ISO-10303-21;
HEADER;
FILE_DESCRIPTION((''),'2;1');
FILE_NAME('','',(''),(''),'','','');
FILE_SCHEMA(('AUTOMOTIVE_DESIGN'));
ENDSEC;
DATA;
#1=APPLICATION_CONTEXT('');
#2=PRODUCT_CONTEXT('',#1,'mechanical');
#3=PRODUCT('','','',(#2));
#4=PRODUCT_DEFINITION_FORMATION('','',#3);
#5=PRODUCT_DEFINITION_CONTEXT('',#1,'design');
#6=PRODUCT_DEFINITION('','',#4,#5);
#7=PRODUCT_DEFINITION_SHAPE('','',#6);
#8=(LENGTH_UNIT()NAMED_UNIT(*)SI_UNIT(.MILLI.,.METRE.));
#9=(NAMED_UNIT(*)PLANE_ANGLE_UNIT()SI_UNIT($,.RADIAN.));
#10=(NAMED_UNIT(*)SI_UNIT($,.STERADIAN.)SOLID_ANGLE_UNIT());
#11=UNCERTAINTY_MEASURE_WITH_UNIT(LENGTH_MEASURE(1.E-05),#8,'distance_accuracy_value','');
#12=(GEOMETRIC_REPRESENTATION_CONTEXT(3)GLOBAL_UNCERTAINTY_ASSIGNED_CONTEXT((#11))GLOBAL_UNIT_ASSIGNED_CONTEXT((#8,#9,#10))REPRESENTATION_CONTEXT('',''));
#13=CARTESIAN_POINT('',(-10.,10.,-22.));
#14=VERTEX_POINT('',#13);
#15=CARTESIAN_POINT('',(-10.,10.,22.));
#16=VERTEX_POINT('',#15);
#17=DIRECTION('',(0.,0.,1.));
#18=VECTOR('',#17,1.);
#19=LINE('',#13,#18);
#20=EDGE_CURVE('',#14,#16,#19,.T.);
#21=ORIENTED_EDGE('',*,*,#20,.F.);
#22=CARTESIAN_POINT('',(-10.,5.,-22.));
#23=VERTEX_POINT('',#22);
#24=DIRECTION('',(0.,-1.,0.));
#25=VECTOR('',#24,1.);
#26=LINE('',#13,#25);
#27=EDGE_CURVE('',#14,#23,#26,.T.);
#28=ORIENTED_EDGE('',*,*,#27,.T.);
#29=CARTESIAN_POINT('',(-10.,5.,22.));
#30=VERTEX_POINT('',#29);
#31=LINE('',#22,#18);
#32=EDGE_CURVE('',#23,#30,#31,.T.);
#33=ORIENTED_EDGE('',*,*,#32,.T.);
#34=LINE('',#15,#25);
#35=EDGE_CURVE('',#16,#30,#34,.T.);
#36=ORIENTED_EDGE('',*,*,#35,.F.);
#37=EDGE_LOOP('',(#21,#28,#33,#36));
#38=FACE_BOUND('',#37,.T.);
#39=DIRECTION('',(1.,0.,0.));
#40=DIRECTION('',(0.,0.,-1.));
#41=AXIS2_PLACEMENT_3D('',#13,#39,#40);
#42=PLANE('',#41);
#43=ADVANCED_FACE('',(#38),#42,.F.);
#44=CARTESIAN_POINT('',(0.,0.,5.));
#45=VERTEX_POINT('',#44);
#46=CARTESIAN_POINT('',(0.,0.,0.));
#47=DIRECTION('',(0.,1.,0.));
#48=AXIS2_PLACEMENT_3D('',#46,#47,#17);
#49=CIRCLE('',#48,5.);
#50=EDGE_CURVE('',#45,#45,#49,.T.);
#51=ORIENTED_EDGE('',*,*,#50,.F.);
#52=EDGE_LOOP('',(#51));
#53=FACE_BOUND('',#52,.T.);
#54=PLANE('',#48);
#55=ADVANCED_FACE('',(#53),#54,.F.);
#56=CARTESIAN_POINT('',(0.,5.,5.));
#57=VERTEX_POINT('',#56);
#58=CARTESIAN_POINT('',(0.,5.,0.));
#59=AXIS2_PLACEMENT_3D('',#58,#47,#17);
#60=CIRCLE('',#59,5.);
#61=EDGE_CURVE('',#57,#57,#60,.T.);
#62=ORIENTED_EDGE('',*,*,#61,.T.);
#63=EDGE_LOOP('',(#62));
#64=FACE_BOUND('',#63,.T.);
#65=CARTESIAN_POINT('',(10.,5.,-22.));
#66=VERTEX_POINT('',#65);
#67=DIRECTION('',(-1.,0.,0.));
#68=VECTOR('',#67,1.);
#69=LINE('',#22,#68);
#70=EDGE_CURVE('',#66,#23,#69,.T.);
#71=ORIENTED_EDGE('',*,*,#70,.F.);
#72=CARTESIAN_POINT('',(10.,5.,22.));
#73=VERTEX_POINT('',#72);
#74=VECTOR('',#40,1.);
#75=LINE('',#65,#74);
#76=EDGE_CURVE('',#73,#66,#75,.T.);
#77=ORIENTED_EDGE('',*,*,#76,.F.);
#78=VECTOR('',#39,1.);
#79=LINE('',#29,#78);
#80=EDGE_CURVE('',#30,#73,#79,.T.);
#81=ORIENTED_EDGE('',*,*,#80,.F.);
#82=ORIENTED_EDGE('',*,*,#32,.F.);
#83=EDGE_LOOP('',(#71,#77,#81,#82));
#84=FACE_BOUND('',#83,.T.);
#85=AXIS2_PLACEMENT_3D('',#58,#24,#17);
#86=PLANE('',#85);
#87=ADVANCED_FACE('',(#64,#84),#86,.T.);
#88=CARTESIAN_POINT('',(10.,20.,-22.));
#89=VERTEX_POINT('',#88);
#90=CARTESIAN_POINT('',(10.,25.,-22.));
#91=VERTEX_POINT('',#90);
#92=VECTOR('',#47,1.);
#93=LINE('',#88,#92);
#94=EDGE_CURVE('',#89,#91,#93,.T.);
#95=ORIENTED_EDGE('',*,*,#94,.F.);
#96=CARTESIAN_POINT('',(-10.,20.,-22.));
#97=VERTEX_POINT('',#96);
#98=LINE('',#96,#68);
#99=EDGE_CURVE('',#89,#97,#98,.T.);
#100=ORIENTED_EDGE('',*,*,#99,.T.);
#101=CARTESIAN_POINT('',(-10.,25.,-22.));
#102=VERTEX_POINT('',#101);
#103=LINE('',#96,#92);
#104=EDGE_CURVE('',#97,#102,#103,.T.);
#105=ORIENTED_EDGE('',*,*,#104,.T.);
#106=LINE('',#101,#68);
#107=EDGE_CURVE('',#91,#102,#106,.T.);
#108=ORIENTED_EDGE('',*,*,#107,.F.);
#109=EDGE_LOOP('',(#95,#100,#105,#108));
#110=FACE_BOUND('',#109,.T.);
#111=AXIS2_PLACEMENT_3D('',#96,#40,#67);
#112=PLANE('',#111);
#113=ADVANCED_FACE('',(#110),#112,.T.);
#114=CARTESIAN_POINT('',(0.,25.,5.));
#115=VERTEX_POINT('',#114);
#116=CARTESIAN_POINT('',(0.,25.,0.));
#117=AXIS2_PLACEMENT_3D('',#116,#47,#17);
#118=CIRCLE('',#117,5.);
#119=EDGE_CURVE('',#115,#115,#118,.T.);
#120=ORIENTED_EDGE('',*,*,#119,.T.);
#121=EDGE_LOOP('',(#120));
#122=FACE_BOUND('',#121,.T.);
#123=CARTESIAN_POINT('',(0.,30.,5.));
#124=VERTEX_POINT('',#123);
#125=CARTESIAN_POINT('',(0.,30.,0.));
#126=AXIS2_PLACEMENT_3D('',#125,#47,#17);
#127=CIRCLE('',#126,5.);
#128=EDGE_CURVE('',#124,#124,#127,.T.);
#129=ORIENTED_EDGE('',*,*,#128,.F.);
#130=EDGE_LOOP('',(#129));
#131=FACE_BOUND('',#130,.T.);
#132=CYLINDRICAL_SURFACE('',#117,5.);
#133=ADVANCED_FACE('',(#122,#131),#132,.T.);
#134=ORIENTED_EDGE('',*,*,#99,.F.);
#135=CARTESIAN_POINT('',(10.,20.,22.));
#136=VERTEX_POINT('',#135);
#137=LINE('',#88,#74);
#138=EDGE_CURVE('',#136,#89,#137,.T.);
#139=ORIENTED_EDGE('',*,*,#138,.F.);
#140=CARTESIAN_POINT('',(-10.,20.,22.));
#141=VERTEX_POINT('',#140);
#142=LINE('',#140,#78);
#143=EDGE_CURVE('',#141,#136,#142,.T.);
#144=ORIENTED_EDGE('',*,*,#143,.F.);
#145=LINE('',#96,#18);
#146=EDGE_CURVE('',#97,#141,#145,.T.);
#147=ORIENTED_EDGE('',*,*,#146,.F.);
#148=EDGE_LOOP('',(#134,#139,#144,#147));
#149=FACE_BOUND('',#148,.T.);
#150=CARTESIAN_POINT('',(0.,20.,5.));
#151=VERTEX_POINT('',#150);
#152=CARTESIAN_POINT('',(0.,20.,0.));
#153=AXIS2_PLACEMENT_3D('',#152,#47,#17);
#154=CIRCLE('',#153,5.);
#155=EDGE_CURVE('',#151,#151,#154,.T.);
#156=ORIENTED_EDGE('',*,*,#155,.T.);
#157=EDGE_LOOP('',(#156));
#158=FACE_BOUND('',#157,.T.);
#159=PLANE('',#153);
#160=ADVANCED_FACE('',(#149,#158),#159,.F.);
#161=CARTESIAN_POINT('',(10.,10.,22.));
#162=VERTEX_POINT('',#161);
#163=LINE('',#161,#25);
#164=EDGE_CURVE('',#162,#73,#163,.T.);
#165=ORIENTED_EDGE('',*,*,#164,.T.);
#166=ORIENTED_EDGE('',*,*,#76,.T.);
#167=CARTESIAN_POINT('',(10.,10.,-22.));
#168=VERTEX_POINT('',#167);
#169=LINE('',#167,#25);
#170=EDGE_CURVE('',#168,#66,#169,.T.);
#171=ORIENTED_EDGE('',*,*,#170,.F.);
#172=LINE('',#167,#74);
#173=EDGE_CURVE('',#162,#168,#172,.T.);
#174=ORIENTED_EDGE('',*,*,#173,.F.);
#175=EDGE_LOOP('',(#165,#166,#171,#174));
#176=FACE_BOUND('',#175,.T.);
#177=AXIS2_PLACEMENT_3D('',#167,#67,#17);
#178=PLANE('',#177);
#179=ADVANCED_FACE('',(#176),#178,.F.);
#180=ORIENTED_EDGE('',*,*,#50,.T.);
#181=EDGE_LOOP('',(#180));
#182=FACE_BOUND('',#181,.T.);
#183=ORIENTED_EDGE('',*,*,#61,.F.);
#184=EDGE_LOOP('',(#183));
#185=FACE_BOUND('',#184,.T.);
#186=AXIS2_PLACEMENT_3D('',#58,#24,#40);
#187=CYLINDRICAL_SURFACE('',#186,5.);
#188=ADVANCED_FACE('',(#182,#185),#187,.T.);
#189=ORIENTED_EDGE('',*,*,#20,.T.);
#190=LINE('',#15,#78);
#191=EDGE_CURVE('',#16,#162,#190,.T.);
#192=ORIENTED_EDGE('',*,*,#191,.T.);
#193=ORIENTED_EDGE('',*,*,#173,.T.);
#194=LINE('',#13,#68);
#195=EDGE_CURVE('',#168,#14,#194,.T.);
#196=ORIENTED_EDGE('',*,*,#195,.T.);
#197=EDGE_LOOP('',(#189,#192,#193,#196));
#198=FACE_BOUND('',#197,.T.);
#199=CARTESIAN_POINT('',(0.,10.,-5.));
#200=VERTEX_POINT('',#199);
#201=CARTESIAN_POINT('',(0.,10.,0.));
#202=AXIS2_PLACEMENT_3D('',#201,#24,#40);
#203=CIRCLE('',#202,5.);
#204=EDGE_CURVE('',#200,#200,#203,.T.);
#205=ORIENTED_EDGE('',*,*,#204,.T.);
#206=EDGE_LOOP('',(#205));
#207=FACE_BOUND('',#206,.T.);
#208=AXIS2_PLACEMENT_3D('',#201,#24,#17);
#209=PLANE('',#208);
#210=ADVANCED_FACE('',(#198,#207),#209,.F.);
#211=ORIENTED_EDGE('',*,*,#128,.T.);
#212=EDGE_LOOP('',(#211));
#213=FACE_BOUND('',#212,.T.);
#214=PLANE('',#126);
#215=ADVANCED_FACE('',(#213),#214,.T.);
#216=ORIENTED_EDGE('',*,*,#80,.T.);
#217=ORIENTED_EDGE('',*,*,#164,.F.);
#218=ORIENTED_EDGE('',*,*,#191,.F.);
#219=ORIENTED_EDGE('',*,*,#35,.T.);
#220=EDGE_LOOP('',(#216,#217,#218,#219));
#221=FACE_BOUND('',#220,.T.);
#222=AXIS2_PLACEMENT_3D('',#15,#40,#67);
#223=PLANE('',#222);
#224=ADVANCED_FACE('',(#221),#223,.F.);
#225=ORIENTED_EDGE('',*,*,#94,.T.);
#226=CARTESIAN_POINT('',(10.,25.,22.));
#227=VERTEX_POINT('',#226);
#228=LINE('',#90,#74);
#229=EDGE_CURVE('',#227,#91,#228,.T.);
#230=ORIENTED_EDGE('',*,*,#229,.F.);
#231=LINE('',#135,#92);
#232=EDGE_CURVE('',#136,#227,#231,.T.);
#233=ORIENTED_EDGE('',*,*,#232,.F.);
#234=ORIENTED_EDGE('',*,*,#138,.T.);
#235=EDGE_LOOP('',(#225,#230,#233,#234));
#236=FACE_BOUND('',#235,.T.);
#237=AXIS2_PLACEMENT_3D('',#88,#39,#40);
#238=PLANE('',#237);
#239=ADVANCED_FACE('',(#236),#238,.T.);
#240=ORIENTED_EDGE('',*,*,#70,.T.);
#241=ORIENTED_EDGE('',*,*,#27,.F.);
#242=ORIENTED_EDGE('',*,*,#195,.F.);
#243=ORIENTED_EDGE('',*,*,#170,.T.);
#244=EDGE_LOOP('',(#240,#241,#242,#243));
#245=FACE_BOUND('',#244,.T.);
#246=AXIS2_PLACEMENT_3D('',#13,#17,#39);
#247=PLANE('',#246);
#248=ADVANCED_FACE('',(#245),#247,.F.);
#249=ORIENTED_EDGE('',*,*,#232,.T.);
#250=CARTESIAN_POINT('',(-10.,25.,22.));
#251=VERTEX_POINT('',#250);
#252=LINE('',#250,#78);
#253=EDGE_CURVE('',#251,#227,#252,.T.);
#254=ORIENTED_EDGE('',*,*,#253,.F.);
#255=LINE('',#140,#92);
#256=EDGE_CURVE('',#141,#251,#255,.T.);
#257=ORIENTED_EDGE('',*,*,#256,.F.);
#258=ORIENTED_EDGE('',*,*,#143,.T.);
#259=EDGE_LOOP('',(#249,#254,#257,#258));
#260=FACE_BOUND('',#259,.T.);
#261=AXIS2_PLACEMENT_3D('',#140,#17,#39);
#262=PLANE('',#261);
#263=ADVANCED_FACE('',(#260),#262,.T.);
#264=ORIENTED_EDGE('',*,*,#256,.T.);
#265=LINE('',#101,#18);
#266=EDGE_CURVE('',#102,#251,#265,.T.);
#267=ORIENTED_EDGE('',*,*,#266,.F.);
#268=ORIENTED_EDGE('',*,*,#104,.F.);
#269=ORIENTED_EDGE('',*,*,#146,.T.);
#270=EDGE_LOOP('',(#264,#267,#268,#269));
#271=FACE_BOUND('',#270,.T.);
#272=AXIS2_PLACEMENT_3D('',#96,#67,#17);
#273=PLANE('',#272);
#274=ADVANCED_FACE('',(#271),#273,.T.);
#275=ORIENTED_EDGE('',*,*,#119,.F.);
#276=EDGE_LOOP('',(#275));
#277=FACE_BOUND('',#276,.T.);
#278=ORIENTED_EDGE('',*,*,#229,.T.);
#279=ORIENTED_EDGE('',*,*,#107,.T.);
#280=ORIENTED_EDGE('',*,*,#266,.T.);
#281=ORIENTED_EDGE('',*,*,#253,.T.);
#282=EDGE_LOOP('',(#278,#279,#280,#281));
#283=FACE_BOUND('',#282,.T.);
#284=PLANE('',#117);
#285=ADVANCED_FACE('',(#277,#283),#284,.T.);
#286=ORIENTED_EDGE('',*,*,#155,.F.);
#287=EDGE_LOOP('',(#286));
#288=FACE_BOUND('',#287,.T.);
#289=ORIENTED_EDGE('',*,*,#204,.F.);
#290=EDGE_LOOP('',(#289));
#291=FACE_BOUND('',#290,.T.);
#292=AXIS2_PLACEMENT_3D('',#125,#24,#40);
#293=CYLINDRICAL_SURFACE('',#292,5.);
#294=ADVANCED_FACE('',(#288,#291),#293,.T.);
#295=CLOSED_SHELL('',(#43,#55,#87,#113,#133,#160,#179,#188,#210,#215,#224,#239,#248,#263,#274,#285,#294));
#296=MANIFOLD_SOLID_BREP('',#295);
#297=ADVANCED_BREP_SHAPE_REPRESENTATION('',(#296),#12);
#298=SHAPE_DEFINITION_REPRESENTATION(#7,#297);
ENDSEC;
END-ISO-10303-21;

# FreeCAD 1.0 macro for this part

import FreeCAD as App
import Part
import Sketcher

V = App.Vector

doc = App.newDocument("Part")
body = doc.addObject("PartDesign::Body", "Body")

# Sketch on XZ plane
sketch1 = doc.addObject("Sketcher::SketchObject", "Sketch")
body.addObject(sketch1)
sketch1.AttachmentSupport = (doc.XZ_Plane, [""])
sketch1.MapMode = "FlatFace"
sketch1.addGeometry(Part.Circle(V(0, 0, 0), V(0, 0, 1), 5), False)
sketch1.addConstraint([
    Sketcher.Constraint("Coincident", 0, 3, -1, 1),
    Sketcher.Constraint("Diameter", 0, 10.0),
])
pad1 = doc.addObject("PartDesign::Pad", "Pad")
body.addObject(pad1)
pad1.Profile = sketch1
pad1.Length = 30
pad1.Reversed = True

# Sketch on XZ plane
sketch2 = doc.addObject("Sketcher::SketchObject", "Sketch001")
body.addObject(sketch2)
sketch2.AttachmentSupport = (doc.XZ_Plane, [""])
sketch2.MapMode = "FlatFace"
sketch2.AttachmentOffset = App.Placement(V(0, 0, -30), App.Rotation())
sketch2.addGeometry([
    Part.LineSegment(V(-10, -22, 0), V(-10, 22, 0)),
    Part.LineSegment(V(-10, 22, 0), V(10, 22, 0)),
    Part.LineSegment(V(10, 22, 0), V(10, -22, 0)),
    Part.LineSegment(V(10, -22, 0), V(-10, -22, 0)),
], False)
sketch2.addConstraint([
    Sketcher.Constraint("Coincident", 0, 2, 1, 1),
    Sketcher.Constraint("Coincident", 1, 2, 2, 1),
    Sketcher.Constraint("Coincident", 2, 2, 3, 1),
    Sketcher.Constraint("Coincident", 3, 2, 0, 1),
    Sketcher.Constraint("Vertical", 0),
    Sketcher.Constraint("Horizontal", 1),
    Sketcher.Constraint("Vertical", 2),
    Sketcher.Constraint("Horizontal", 3),
    Sketcher.Constraint("Symmetric", 0, 2, 2, 2, -1, 1),
    Sketcher.Constraint("DistanceX", 1, 1, 1, 2, 20.0),
    Sketcher.Constraint("DistanceY", 0, 1, 0, 2, 44.0),
])
pad2 = doc.addObject("PartDesign::Pad", "Pad001")
body.addObject(pad2)
pad2.Profile = sketch2
pad2.Length = 10

# Sketch on XZ plane
sketch3 = doc.addObject("Sketcher::SketchObject", "Sketch002")
body.addObject(sketch3)
sketch3.AttachmentSupport = (doc.XZ_Plane, [""])
sketch3.MapMode = "FlatFace"
sketch3.AttachmentOffset = App.Placement(V(0, 0, -25), App.Rotation())
sketch3.addGeometry([
    Part.LineSegment(V(-10, -22, 0), V(-10, 22, 0)),  # 0
    Part.LineSegment(V(-10, 22, 0), V(10, 22, 0)),  # 1
    Part.LineSegment(V(10, 22, 0), V(10, -22, 0)),  # 2
    Part.LineSegment(V(10, -22, 0), V(-10, -22, 0)),  # 3
    Part.Circle(V(0, 0, 0), V(0, 0, 1), 5),  # 4
], False)
sketch3.addConstraint([
    Sketcher.Constraint("Coincident", 0, 2, 1, 1),
    Sketcher.Constraint("Coincident", 1, 2, 2, 1),
    Sketcher.Constraint("Coincident", 2, 2, 3, 1),
    Sketcher.Constraint("Coincident", 3, 2, 0, 1),
    Sketcher.Constraint("Vertical", 0),
    Sketcher.Constraint("Horizontal", 1),
    Sketcher.Constraint("Vertical", 2),
    Sketcher.Constraint("Horizontal", 3),
    Sketcher.Constraint("Coincident", 4, 3, -1, 1),
    Sketcher.Constraint("Symmetric", 0, 2, 2, 2, -1, 1),
    Sketcher.Constraint("Diameter", 4, 10.0),
    Sketcher.Constraint("DistanceX", 1, 1, 1, 2, 20.0),
    Sketcher.Constraint("DistanceY", 0, 1, 0, 2, 44.0),
])
pocket1 = doc.addObject("PartDesign::Pocket", "Pocket")
body.addObject(pocket1)
pocket1.Profile = sketch3
pocket1.Length = 5
doc.recompute()

datumplane = doc.addObject("PartDesign::Plane", "DatumPlane")
body.addObject(datumplane)
datumplane.AttachmentSupport = (doc.XZ_Plane, [""])
datumplane.MapMode = "FlatFace"
datumplane.AttachmentOffset = App.Placement(V(0, 0, -15), App.Rotation())
mirrored = doc.addObject("PartDesign::Mirrored", "Mirrored")
body.addObject(mirrored)
mirrored.Originals = [pad2, pocket1]
mirrored.MirrorPlane = (datumplane, [""])
body.Tip = mirrored

doc.recompute()
